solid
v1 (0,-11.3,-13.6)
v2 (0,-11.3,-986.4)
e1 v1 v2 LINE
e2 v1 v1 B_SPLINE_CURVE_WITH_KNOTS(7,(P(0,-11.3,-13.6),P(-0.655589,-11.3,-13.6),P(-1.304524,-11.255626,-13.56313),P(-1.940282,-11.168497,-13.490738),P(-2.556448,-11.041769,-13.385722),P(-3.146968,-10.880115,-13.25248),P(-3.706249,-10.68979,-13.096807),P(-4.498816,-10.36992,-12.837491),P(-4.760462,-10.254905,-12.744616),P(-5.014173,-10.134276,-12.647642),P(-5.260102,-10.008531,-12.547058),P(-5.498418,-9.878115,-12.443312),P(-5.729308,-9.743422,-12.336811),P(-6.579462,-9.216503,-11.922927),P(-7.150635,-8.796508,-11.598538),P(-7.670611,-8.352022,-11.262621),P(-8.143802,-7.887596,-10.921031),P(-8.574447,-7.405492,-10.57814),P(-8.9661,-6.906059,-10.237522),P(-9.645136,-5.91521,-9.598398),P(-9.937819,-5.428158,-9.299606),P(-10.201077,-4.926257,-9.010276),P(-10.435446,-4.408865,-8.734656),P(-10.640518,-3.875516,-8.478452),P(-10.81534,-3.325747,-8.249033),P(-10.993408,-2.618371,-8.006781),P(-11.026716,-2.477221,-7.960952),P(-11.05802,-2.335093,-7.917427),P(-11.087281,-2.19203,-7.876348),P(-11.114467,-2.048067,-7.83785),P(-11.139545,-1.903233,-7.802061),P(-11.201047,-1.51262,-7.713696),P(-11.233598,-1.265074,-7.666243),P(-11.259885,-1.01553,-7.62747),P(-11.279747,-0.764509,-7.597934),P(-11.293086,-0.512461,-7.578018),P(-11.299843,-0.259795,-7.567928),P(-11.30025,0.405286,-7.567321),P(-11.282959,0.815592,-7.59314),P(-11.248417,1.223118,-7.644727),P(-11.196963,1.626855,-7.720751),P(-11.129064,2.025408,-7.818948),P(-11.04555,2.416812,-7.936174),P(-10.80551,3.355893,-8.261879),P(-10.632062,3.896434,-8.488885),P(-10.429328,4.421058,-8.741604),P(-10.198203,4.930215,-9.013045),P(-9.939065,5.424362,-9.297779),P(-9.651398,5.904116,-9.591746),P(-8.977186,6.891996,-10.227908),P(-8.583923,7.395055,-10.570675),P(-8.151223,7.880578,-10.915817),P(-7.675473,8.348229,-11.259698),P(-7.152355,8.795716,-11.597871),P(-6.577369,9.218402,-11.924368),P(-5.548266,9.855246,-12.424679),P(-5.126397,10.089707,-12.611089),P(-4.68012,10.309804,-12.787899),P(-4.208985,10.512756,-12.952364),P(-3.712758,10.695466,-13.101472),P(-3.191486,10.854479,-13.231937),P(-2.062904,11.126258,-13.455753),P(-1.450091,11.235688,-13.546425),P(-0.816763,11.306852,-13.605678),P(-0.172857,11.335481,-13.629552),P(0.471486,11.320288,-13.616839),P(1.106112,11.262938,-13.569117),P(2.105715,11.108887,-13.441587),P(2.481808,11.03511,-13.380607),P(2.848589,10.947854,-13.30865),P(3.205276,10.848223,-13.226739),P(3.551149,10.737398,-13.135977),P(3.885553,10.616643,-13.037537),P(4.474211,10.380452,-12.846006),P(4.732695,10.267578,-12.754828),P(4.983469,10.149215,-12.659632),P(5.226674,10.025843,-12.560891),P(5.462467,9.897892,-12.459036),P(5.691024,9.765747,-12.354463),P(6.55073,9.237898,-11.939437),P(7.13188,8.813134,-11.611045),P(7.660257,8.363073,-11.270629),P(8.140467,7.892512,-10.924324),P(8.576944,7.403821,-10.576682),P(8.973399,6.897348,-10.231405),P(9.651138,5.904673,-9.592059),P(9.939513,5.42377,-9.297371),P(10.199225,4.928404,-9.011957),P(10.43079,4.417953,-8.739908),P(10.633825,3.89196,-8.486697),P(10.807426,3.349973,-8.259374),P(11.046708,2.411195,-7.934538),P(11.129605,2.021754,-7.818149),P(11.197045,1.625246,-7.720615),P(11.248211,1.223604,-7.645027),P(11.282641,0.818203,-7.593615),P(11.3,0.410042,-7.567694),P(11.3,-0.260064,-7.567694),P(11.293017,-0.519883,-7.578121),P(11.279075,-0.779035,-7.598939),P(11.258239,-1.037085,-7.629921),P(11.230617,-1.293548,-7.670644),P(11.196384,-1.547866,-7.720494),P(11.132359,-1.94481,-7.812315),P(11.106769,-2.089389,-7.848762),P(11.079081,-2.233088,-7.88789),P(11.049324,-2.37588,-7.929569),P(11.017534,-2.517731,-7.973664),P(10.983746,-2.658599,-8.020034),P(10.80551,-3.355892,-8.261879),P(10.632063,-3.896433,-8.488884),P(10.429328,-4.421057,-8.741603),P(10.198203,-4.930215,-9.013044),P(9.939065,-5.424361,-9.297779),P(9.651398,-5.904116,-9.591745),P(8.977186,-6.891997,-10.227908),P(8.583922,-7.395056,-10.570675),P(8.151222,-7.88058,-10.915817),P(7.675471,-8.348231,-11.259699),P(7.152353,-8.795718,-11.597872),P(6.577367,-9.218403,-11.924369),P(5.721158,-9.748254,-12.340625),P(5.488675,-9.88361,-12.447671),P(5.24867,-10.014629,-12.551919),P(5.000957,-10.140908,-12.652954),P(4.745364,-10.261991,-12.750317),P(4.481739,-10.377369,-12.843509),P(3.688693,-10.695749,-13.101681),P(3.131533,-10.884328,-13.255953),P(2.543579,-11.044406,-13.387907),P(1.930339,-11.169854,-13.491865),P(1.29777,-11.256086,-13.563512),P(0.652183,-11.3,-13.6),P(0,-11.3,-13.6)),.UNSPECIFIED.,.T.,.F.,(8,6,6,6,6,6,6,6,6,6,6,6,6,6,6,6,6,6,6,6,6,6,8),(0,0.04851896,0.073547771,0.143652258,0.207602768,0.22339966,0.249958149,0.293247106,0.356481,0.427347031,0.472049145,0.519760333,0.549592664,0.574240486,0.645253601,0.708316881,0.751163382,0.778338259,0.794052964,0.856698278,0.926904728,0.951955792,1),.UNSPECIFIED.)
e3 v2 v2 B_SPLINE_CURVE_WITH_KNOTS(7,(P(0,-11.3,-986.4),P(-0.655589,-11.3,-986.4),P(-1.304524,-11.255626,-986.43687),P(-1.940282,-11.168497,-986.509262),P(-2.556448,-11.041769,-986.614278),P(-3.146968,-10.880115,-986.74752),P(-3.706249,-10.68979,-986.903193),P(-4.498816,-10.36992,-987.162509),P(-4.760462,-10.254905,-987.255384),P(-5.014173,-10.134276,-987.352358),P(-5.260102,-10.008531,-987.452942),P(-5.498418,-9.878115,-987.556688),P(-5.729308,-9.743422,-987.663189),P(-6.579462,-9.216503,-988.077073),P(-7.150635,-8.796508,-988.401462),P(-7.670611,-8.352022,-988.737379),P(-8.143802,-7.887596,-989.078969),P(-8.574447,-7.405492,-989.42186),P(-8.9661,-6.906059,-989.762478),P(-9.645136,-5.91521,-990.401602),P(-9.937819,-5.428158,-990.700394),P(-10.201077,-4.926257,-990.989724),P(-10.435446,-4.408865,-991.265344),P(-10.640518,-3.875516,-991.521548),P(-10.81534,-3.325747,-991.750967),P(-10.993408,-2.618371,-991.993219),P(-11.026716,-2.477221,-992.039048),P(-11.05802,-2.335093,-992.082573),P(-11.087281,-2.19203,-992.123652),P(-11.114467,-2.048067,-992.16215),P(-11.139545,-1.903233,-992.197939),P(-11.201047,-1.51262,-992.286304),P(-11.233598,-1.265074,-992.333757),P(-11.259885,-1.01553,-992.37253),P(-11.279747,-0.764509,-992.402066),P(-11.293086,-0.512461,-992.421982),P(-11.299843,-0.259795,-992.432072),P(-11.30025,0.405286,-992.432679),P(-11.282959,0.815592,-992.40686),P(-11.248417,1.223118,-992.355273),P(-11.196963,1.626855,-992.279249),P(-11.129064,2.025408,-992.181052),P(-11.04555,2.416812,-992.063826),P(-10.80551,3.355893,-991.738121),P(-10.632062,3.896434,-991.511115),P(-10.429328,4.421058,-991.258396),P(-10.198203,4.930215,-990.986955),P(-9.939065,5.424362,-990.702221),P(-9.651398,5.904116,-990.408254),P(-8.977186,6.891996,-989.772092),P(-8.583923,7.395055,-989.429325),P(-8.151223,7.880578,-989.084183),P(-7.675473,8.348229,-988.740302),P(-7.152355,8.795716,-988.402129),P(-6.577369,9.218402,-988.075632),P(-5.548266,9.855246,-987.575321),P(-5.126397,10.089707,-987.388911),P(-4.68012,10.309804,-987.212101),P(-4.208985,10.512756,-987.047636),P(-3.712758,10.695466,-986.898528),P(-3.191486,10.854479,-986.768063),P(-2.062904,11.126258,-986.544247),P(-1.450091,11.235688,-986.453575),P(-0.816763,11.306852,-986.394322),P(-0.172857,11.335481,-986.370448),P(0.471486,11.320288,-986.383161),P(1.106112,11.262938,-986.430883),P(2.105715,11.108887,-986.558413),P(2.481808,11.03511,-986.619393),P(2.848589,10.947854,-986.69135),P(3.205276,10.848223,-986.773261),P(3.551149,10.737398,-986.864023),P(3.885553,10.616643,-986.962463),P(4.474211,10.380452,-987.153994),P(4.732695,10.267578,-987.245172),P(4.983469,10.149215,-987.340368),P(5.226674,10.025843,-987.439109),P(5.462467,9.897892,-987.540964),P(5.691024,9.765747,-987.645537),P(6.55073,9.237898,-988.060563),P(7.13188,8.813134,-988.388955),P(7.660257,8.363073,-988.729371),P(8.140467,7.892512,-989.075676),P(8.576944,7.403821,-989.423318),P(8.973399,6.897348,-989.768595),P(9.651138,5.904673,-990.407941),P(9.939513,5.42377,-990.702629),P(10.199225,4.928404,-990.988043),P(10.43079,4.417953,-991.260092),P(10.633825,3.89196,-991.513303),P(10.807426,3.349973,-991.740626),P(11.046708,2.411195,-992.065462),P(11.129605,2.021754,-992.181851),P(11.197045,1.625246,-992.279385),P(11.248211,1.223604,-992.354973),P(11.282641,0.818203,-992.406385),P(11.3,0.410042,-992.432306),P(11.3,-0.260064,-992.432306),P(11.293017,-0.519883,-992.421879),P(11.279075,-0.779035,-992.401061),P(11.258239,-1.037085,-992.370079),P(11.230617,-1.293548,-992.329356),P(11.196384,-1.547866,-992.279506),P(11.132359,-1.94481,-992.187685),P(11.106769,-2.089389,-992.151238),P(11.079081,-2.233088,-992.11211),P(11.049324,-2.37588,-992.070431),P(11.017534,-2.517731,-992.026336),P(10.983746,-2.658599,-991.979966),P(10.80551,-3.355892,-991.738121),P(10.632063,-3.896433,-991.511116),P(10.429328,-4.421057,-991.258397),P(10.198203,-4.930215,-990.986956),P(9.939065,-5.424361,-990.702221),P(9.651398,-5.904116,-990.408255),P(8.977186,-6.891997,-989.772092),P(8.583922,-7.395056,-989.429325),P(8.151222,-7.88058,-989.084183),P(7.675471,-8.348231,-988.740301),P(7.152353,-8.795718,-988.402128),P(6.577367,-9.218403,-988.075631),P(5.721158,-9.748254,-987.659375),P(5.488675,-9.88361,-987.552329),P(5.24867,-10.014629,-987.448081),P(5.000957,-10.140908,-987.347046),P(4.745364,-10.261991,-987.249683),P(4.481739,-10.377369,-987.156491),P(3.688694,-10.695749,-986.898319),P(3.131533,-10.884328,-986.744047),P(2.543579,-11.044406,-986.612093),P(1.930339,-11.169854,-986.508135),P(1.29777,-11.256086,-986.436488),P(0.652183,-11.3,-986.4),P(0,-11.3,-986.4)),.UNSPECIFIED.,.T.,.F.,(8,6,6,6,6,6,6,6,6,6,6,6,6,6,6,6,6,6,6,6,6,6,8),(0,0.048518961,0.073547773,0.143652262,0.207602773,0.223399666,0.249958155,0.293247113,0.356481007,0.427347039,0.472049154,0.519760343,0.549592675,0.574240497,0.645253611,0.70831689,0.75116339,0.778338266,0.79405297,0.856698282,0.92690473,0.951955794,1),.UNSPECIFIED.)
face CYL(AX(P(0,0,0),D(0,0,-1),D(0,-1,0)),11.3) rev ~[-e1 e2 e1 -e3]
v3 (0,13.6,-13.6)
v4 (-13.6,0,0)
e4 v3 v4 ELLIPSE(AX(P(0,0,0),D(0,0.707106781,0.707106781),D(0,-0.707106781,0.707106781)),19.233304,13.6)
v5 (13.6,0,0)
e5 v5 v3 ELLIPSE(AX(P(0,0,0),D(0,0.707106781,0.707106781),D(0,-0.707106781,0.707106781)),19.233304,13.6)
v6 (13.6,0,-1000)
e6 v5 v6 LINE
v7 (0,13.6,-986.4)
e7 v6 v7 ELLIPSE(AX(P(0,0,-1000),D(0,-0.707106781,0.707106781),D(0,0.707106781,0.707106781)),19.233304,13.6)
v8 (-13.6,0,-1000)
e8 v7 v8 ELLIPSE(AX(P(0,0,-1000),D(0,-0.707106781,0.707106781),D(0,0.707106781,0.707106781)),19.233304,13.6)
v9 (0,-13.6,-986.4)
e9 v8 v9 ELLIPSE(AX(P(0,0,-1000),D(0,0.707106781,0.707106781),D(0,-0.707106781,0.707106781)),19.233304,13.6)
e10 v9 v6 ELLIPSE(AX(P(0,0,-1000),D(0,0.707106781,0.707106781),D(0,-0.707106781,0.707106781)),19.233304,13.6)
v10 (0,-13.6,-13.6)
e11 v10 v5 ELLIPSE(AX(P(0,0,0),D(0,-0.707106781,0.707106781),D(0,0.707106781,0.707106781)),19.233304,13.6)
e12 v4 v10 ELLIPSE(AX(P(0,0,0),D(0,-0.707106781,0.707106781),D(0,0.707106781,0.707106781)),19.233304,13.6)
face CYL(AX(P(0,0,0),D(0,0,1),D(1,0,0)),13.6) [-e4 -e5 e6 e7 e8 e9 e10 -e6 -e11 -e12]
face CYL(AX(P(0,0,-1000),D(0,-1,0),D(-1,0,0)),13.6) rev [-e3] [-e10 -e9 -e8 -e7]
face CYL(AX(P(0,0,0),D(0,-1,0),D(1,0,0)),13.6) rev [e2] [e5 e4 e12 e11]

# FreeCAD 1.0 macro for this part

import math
import FreeCAD as App
import Part
import Sketcher
from FreeCAD import Vector
Q = App.Units.Quantity

doc = App.newDocument("Part")
params = doc.addObject("Spreadsheet::Sheet", "Params")
for row, (alias, value) in enumerate([
    ("sketch1_diameter", "27.2 mm"),
    ("pad1_length", "1000 mm"),
    ("sketch2_diameter", "22.6 mm"),
    ("hole_diameter", "22.6 mm"),
    ("sketch3_radius", "13.6 mm"),
    ("pocket1_length", "27.2 mm"),
    ("sketch4_radius", "13.6 mm"),
    ("pocket2_length", "27.2 mm"),
], start=1):
    params.set(f"A{row}", alias)
    params.set(f"B{row}", "=" + value)
    params.setAlias(f"B{row}", alias)

body = doc.addObject("PartDesign::Body", "Body")

# Sketch on XY plane
sketch1 = body.newObject("Sketcher::SketchObject", "Sketch")
sketch1.AttachmentSupport = (doc.getObject("XY_Plane"), [""])
sketch1.MapMode = "FlatFace"
sketch1.addGeometry(Part.Circle(Vector(0, 0, 0), Vector(0, 0, 1), 14), False)
sketch1.addConstraint([
    Sketcher.Constraint("Coincident", 0, 3, -1, 1),
    Sketcher.Constraint("Diameter", 0, Q("27.2 mm")),
])
sketch1.setExpression("Constraints[1]", "Params.sketch1_diameter")
pad1 = body.newObject("PartDesign::Pad", "Pad")
pad1.Profile = sketch1
pad1.setExpression("Length", "Params.pad1_length")
pad1.Reversed = True

# Sketch on XY plane
sketch2 = body.newObject("Sketcher::SketchObject", "Sketch001")
sketch2.AttachmentSupport = (doc.getObject("XY_Plane"), [""])
sketch2.MapMode = "FlatFace"
sketch2.addGeometry(Part.Circle(Vector(0, 0, 0), Vector(0, 0, 1), 11), False)
sketch2.addConstraint([
    Sketcher.Constraint("Coincident", 0, 3, -1, 1),
    Sketcher.Constraint("Diameter", 0, Q("22.6 mm")),
])
sketch2.setExpression("Constraints[1]", "Params.sketch2_diameter")
doc.recompute()
hole = body.newObject("PartDesign::Hole", "Hole")
hole.Profile = sketch2
hole.ThreadType = "None"
hole.setExpression("Diameter", "Params.hole_diameter")
hole.DepthType = "ThroughAll"

# Sketch on XZ plane
sketch3 = body.newObject("Sketcher::SketchObject", "Sketch002")
sketch3.AttachmentSupport = (doc.getObject("XZ_Plane"), [""])
sketch3.MapMode = "FlatFace"
sketch3.addGeometry([
    Part.LineSegment(Vector(-14, 0, 0), Vector(14, 0, 0)),
    Part.ArcOfCircle(Part.Circle(Vector(0, 0, 0), Vector(0, 0, 1), 14), math.radians(180), math.radians(360)),
], False)
sketch3.addConstraint([
    Sketcher.Constraint("Coincident", 0, 1, 1, 1),
    Sketcher.Constraint("Coincident", 1, 2, 0, 2),
    Sketcher.Constraint("Horizontal", 0),
    Sketcher.Constraint("Coincident", 1, 3, -1, 1),
    Sketcher.Constraint("PointOnObject", 0, 1, -1),
    Sketcher.Constraint("Radius", 1, Q("13.6 mm")),
])
sketch3.setExpression("Constraints[5]", "Params.sketch3_radius")
pocket1 = body.newObject("PartDesign::Pocket", "Pocket")
pocket1.Profile = sketch3
pocket1.setExpression("Length", "Params.pocket1_length")
pocket1.Midplane = True

# Sketch on XZ plane
sketch4 = body.newObject("Sketcher::SketchObject", "Sketch003")
sketch4.AttachmentSupport = (doc.getObject("XZ_Plane"), [""])
sketch4.MapMode = "FlatFace"
sketch4.addGeometry([
    Part.ArcOfCircle(Part.Circle(Vector(0, -1000, 0), Vector(0, 0, 1), 14), math.radians(0), math.radians(180)),
    Part.LineSegment(Vector(14, -1000, 0), Vector(-14, -1000, 0)),
], False)
sketch4.addConstraint([
    Sketcher.Constraint("Coincident", 0, 1, 1, 1),
    Sketcher.Constraint("Coincident", 1, 2, 0, 2),
    Sketcher.Constraint("Horizontal", 1),
    Sketcher.Constraint("PointOnObject", 0, 3, -2),
    Sketcher.Constraint("Radius", 0, Q("13.6 mm")),
    Sketcher.Constraint("DistanceY", 0, 3, -1, 1, Q("1000 mm")),
    Sketcher.Constraint("DistanceY", 0, 1, -1, 1, Q("1000 mm")),
])
sketch4.setExpression("Constraints[4]", "Params.sketch4_radius")
pocket2 = body.newObject("PartDesign::Pocket", "Pocket001")
pocket2.Profile = sketch4
pocket2.setExpression("Length", "Params.pocket2_length")
pocket2.Midplane = True

doc.recompute()
